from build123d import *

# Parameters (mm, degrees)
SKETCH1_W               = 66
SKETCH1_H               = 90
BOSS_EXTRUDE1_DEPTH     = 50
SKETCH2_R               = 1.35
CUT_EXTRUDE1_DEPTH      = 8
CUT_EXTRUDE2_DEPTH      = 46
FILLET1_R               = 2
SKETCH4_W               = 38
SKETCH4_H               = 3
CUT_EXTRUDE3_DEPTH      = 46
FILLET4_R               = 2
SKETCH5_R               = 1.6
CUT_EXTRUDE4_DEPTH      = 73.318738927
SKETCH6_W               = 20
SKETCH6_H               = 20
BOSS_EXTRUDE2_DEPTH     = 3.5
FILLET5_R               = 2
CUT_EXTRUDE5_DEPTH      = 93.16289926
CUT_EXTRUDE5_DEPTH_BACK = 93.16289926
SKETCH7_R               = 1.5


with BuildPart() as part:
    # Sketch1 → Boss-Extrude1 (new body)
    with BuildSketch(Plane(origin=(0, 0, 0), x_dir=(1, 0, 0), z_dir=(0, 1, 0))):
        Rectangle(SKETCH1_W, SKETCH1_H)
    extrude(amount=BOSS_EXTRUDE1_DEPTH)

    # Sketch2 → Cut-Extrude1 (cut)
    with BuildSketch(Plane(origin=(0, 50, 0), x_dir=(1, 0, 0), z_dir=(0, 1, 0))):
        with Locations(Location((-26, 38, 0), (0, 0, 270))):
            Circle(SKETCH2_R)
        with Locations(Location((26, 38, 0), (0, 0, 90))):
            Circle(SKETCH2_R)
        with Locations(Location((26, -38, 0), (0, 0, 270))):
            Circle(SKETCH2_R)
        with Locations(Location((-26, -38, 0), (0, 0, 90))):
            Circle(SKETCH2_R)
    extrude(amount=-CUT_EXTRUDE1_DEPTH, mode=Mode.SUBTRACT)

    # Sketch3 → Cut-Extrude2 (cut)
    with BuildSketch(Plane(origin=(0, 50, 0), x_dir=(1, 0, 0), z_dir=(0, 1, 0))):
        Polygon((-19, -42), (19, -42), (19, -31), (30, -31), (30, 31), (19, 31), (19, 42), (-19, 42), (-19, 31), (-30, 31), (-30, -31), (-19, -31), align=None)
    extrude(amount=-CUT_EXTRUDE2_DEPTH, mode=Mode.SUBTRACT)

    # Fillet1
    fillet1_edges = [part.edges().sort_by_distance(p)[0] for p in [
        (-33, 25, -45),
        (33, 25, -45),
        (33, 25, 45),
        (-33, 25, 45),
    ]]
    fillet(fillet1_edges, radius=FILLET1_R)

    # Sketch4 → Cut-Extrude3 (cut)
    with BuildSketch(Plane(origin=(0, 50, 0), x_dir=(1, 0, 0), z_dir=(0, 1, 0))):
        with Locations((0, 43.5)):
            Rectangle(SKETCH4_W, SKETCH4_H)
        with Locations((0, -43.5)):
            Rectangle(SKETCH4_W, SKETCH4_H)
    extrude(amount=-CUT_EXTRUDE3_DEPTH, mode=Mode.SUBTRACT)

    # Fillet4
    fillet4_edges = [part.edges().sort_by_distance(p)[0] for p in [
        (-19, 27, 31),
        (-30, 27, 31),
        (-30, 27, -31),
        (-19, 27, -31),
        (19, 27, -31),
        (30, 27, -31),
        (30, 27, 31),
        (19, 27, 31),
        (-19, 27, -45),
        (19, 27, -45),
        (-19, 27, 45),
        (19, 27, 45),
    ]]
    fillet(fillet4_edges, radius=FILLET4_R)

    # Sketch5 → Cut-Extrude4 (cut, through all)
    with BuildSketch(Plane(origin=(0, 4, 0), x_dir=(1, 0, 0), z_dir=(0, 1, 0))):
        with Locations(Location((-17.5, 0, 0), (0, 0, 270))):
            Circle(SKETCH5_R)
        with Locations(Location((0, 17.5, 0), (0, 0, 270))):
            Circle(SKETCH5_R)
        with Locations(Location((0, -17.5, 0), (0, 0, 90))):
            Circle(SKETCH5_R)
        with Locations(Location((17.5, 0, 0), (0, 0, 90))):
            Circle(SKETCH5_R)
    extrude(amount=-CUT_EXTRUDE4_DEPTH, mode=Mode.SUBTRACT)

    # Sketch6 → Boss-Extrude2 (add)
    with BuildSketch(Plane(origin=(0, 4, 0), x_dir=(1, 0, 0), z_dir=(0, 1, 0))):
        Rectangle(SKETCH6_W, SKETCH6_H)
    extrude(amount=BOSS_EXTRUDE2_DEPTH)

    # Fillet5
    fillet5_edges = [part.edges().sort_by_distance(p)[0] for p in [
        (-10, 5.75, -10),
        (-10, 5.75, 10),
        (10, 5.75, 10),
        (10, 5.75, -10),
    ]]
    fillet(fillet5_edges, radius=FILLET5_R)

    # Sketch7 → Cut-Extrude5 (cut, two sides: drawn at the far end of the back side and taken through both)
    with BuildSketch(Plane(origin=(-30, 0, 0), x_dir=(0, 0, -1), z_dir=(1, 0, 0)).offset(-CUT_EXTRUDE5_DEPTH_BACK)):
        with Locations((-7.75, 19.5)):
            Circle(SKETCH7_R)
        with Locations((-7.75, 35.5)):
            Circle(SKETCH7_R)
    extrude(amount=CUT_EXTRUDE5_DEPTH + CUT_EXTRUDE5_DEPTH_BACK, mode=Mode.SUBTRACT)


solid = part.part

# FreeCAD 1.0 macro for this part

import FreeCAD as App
import Part
import Sketcher

V = App.Vector
Q = App.Units.Quantity


def edges_at(feature, points):
    """Names of the edges that pass closest to the given points."""
    edges = feature.Shape.Edges
    near = lambda p: min(range(len(edges)), key=lambda i: edges[i].distToShape(Part.Vertex(*p))[0])
    return sorted({f"Edge{near(p) + 1}" for p in points})

doc = App.newDocument("Part")
body = doc.addObject("PartDesign::Body", "Body")

sketch1 = body.newObject("Sketcher::SketchObject", "Sketch")
sketch1.AttachmentSupport = (doc.getObject("XZ_Plane"), [""])
sketch1.MapMode = "FlatFace"
sketch1.addGeometry([
    Part.LineSegment(V(-33, -45, 0), V(-33, 45, 0)),
    Part.LineSegment(V(-33, 45, 0), V(33, 45, 0)),
    Part.LineSegment(V(33, 45, 0), V(33, -45, 0)),
    Part.LineSegment(V(33, -45, 0), V(-33, -45, 0)),
], False)
sketch1.addConstraint([
    Sketcher.Constraint("Coincident", 0, 2, 1, 1),
    Sketcher.Constraint("Coincident", 1, 2, 2, 1),
    Sketcher.Constraint("Coincident", 2, 2, 3, 1),
    Sketcher.Constraint("Coincident", 3, 2, 0, 1),
    Sketcher.Constraint("Vertical", 0),
    Sketcher.Constraint("Horizontal", 1),
    Sketcher.Constraint("Vertical", 2),
    Sketcher.Constraint("Horizontal", 3),
    Sketcher.Constraint("Symmetric", 0, 2, 2, 2, -1, 1),
    Sketcher.Constraint("DistanceX", 1, 1, 1, 2, Q("66 mm")),
    Sketcher.Constraint("DistanceY", 0, 1, 0, 2, Q("90 mm")),
])
pad1 = body.newObject("PartDesign::Pad", "Pad")
pad1.Profile = sketch1
pad1.Length = 50
pad1.Reversed = True

sketch2 = body.newObject("Sketcher::SketchObject", "Sketch001")
sketch2.AttachmentSupport = (doc.getObject("XZ_Plane"), [""])
sketch2.MapMode = "FlatFace"
sketch2.AttachmentOffset = App.Placement(V(0, 0, -50), App.Rotation())
sketch2.addGeometry([
    Part.Circle(V(-26, -38, 0), V(0, 0, 1), 1.4),
    Part.Circle(V(26, -38, 0), V(0, 0, 1), 1.4),
    Part.Circle(V(26, 38, 0), V(0, 0, 1), 1.4),
    Part.Circle(V(-26, 38, 0), V(0, 0, 1), 1.4),
], False)
sketch2.addConstraint([
    Sketcher.Constraint("Equal", 0, 1),
    Sketcher.Constraint("Equal", 1, 2),
    Sketcher.Constraint("Equal", 2, 3),
    Sketcher.Constraint("Symmetric", 0, 3, 2, 3, -1, 1),
    Sketcher.Constraint("Symmetric", 1, 3, 3, 3, -1, 1),
    Sketcher.Constraint("Symmetric", 0, 3, 1, 3, -2),
    Sketcher.Constraint("Diameter", 0, Q("2.7 mm")),
    Sketcher.Constraint("DistanceX", 0, 3, -1, 1, Q("26 mm")),
    Sketcher.Constraint("DistanceY", 0, 3, -1, 1, Q("38 mm")),
])
pocket1 = body.newObject("PartDesign::Pocket", "Pocket")
pocket1.Profile = sketch2
pocket1.Length = 8
pocket1.Reversed = True

sketch3 = body.newObject("Sketcher::SketchObject", "Sketch002")
sketch3.AttachmentSupport = (doc.getObject("XZ_Plane"), [""])
sketch3.MapMode = "FlatFace"
sketch3.AttachmentOffset = App.Placement(V(0, 0, -50), App.Rotation())
sketch3.addGeometry([
    Part.LineSegment(V(-19, 42, 0), V(19, 42, 0)),
    Part.LineSegment(V(19, 42, 0), V(19, 31, 0)),
    Part.LineSegment(V(19, 31, 0), V(30, 31, 0)),
    Part.LineSegment(V(30, 31, 0), V(30, -31, 0)),
    Part.LineSegment(V(30, -31, 0), V(19, -31, 0)),
    Part.LineSegment(V(19, -31, 0), V(19, -42, 0)),
    Part.LineSegment(V(19, -42, 0), V(-19, -42, 0)),
    Part.LineSegment(V(-19, -42, 0), V(-19, -31, 0)),
    Part.LineSegment(V(-19, -31, 0), V(-30, -31, 0)),
    Part.LineSegment(V(-30, -31, 0), V(-30, 31, 0)),
    Part.LineSegment(V(-30, 31, 0), V(-19, 31, 0)),
    Part.LineSegment(V(-19, 31, 0), V(-19, 42, 0)),
], False)
sketch3.addConstraint([
    Sketcher.Constraint("Coincident", 0, 2, 1, 1),
    Sketcher.Constraint("Coincident", 1, 2, 2, 1),
    Sketcher.Constraint("Coincident", 2, 2, 3, 1),
    Sketcher.Constraint("Coincident", 3, 2, 4, 1),
    Sketcher.Constraint("Coincident", 4, 2, 5, 1),
    Sketcher.Constraint("Coincident", 5, 2, 6, 1),
    Sketcher.Constraint("Coincident", 6, 2, 7, 1),
    Sketcher.Constraint("Coincident", 7, 2, 8, 1),
    Sketcher.Constraint("Coincident", 8, 2, 9, 1),
    Sketcher.Constraint("Coincident", 9, 2, 10, 1),
    Sketcher.Constraint("Coincident", 10, 2, 11, 1),
    Sketcher.Constraint("Coincident", 11, 2, 0, 1),
    Sketcher.Constraint("Horizontal", 0),
    Sketcher.Constraint("Vertical", 1),
    Sketcher.Constraint("Horizontal", 2),
    Sketcher.Constraint("Vertical", 3),
    Sketcher.Constraint("Horizontal", 4),
    Sketcher.Constraint("Vertical", 5),
    Sketcher.Constraint("Horizontal", 6),
    Sketcher.Constraint("Vertical", 7),
    Sketcher.Constraint("Horizontal", 8),
    Sketcher.Constraint("Vertical", 9),
    Sketcher.Constraint("Horizontal", 10),
    Sketcher.Constraint("Vertical", 11),
    Sketcher.Constraint("Symmetric", 0, 2, 6, 2, -1, 1),
    Sketcher.Constraint("Symmetric", 2, 2, 8, 2, -1, 1),
    Sketcher.Constraint("Symmetric", 4, 2, 10, 2, -1, 1),
    Sketcher.Constraint("Symmetric", 4, 2, 7, 2, -2),
    Sketcher.Constraint("Equal", 10, 1),
    Sketcher.Constraint("DistanceX", 0, 1, 0, 2, Q("38 mm")),
    Sketcher.Constraint("DistanceX", 2, 1, 2, 2, Q("11 mm")),
    Sketcher.Constraint("DistanceY", 3, 2, 3, 1, Q("62 mm")),
])
pocket2 = body.newObject("PartDesign::Pocket", "Pocket001")
pocket2.Profile = sketch3
pocket2.Length = 46
pocket2.Reversed = True
doc.recompute()

fillet = body.newObject("PartDesign::Fillet", "Fillet")
fillet.Base = (pocket2, edges_at(pocket2, [
    (-33, 25, -45),
    (33, 25, -45),
    (33, 25, 45),
    (-33, 25, 45),
]))
fillet.Radius = 2

sketch4 = body.newObject("Sketcher::SketchObject", "Sketch003")
sketch4.AttachmentSupport = (doc.getObject("XZ_Plane"), [""])
sketch4.MapMode = "FlatFace"
sketch4.AttachmentOffset = App.Placement(V(0, 0, -50), App.Rotation())
sketch4.addGeometry([
    Part.LineSegment(V(-19, -45, 0), V(-19, -42, 0)),
    Part.LineSegment(V(-19, -42, 0), V(19, -42, 0)),
    Part.LineSegment(V(19, -42, 0), V(19, -45, 0)),
    Part.LineSegment(V(19, -45, 0), V(-19, -45, 0)),
    Part.LineSegment(V(-19, 42, 0), V(-19, 45, 0)),
    Part.LineSegment(V(-19, 45, 0), V(19, 45, 0)),
    Part.LineSegment(V(19, 45, 0), V(19, 42, 0)),
    Part.LineSegment(V(19, 42, 0), V(-19, 42, 0)),
], False)
sketch4.addConstraint([
    Sketcher.Constraint("Coincident", 0, 2, 1, 1),
    Sketcher.Constraint("Coincident", 1, 2, 2, 1),
    Sketcher.Constraint("Coincident", 2, 2, 3, 1),
    Sketcher.Constraint("Coincident", 3, 2, 0, 1),
    Sketcher.Constraint("Coincident", 4, 2, 5, 1),
    Sketcher.Constraint("Coincident", 5, 2, 6, 1),
    Sketcher.Constraint("Coincident", 6, 2, 7, 1),
    Sketcher.Constraint("Coincident", 7, 2, 4, 1),
    Sketcher.Constraint("Vertical", 0),
    Sketcher.Constraint("Horizontal", 1),
    Sketcher.Constraint("Vertical", 2),
    Sketcher.Constraint("Horizontal", 3),
    Sketcher.Constraint("Vertical", 4),
    Sketcher.Constraint("Horizontal", 5),
    Sketcher.Constraint("Vertical", 6),
    Sketcher.Constraint("Horizontal", 7),
    Sketcher.Constraint("Symmetric", 2, 2, 4, 2, -1, 1),
    Sketcher.Constraint("Symmetric", 0, 2, 6, 2, -1, 1),
    Sketcher.Constraint("Vertical", 3, 2, 4, 2),
    Sketcher.Constraint("DistanceX", 1, 1, 1, 2, Q("38 mm")),
    Sketcher.Constraint("DistanceY", 0, 1, 0, 2, Q("3 mm")),
    Sketcher.Constraint("DistanceY", 0, 2, -1, 1, Q("42 mm")),
])
pocket3 = body.newObject("PartDesign::Pocket", "Pocket002")
pocket3.Profile = sketch4
pocket3.Length = 46
pocket3.Reversed = True
doc.recompute()

fillet2 = body.newObject("PartDesign::Fillet", "Fillet001")
fillet2.Base = (pocket3, edges_at(pocket3, [
    (-19, 27, 31),
    (-30, 27, 31),
    (-30, 27, -31),
    (-19, 27, -31),
    (19, 27, -31),
    (30, 27, -31),
    (30, 27, 31),
    (19, 27, 31),
    (-19, 27, -45),
    (19, 27, -45),
    (-19, 27, 45),
    (19, 27, 45),
]))
fillet2.Radius = 2

sketch5 = body.newObject("Sketcher::SketchObject", "Sketch004")
sketch5.AttachmentSupport = (doc.getObject("XZ_Plane"), [""])
sketch5.MapMode = "FlatFace"
sketch5.AttachmentOffset = App.Placement(V(0, 0, -4), App.Rotation())
sketch5.addGeometry([
    Part.Circle(V(-17.5, 0, 0), V(0, 0, 1), 1.6),
    Part.Circle(V(0, -17.5, 0), V(0, 0, 1), 1.6),
    Part.Circle(V(0, 17.5, 0), V(0, 0, 1), 1.6),
    Part.Circle(V(17.5, 0, 0), V(0, 0, 1), 1.6),
], False)
sketch5.addConstraint([
    Sketcher.Constraint("Equal", 0, 1),
    Sketcher.Constraint("Equal", 1, 2),
    Sketcher.Constraint("Equal", 2, 3),
    Sketcher.Constraint("Symmetric", 1, 3, 2, 3, -1, 1),
    Sketcher.Constraint("Symmetric", 0, 3, 3, 3, -1, 1),
    Sketcher.Constraint("PointOnObject", 0, 3, -1),
    Sketcher.Constraint("PointOnObject", 1, 3, -2),
    Sketcher.Constraint("Diameter", 0, Q("3.2 mm")),
    Sketcher.Constraint("DistanceY", 1, 3, 2, 3, Q("35 mm")),
    Sketcher.Constraint("DistanceX", 0, 3, 3, 3, Q("35 mm")),
])
pocket4 = body.newObject("PartDesign::Pocket", "Pocket003")
pocket4.Profile = sketch5
pocket4.Type = "ThroughAll"
pocket4.Reversed = True

sketch6 = body.newObject("Sketcher::SketchObject", "Sketch005")
sketch6.AttachmentSupport = (doc.getObject("XZ_Plane"), [""])
sketch6.MapMode = "FlatFace"
sketch6.AttachmentOffset = App.Placement(V(0, 0, -4), App.Rotation())
sketch6.addGeometry([
    Part.LineSegment(V(-10, -10, 0), V(-10, 10, 0)),
    Part.LineSegment(V(-10, 10, 0), V(10, 10, 0)),
    Part.LineSegment(V(10, 10, 0), V(10, -10, 0)),
    Part.LineSegment(V(10, -10, 0), V(-10, -10, 0)),
], False)
sketch6.addConstraint([
    Sketcher.Constraint("Coincident", 0, 2, 1, 1),
    Sketcher.Constraint("Coincident", 1, 2, 2, 1),
    Sketcher.Constraint("Coincident", 2, 2, 3, 1),
    Sketcher.Constraint("Coincident", 3, 2, 0, 1),
    Sketcher.Constraint("Vertical", 0),
    Sketcher.Constraint("Horizontal", 1),
    Sketcher.Constraint("Vertical", 2),
    Sketcher.Constraint("Horizontal", 3),
    Sketcher.Constraint("Symmetric", 0, 2, 2, 2, -1, 1),
    Sketcher.Constraint("Equal", 3, 0),
    Sketcher.Constraint("DistanceX", 1, 1, 1, 2, Q("20 mm")),
])
pad2 = body.newObject("PartDesign::Pad", "Pad001")
pad2.Profile = sketch6
pad2.Length = 3.5
pad2.Reversed = True
doc.recompute()

fillet3 = body.newObject("PartDesign::Fillet", "Fillet002")
fillet3.Base = (pad2, edges_at(pad2, [
    (-10, 5.75, -10),
    (-10, 5.75, 10),
    (10, 5.75, 10),
    (10, 5.75, -10),
]))
fillet3.Radius = 2

sketch7 = body.newObject("Sketcher::SketchObject", "Sketch006")
sketch7.AttachmentSupport = (doc.getObject("YZ_Plane"), [""])
sketch7.MapMode = "FlatFace"
sketch7.AttachmentOffset = App.Placement(V(0, 0, -30), App.Rotation())
sketch7.addGeometry([
    Part.Circle(V(19.5, 7.8, 0), V(0, 0, 1), 1.5),
    Part.Circle(V(35.5, 7.8, 0), V(0, 0, 1), 1.5),
], False)
sketch7.addConstraint([
    Sketcher.Constraint("Equal", 0, 1),
    Sketcher.Constraint("Horizontal", 0, 3, 1, 3),
    Sketcher.Constraint("Diameter", 0, Q("3 mm")),
    Sketcher.Constraint("DistanceX", 0, 3, 1, 3, Q("16 mm")),
    Sketcher.Constraint("DistanceX", -1, 1, 0, 3, Q("19.5 mm")),
    Sketcher.Constraint("DistanceY", -1, 1, 0, 3, Q("7.75 mm")),
])
pocket5 = body.newObject("PartDesign::Pocket", "Pocket004")
pocket5.Profile = sketch7
pocket5.Type = "ThroughAll"
pocket5.Midplane = True

doc.recompute()
